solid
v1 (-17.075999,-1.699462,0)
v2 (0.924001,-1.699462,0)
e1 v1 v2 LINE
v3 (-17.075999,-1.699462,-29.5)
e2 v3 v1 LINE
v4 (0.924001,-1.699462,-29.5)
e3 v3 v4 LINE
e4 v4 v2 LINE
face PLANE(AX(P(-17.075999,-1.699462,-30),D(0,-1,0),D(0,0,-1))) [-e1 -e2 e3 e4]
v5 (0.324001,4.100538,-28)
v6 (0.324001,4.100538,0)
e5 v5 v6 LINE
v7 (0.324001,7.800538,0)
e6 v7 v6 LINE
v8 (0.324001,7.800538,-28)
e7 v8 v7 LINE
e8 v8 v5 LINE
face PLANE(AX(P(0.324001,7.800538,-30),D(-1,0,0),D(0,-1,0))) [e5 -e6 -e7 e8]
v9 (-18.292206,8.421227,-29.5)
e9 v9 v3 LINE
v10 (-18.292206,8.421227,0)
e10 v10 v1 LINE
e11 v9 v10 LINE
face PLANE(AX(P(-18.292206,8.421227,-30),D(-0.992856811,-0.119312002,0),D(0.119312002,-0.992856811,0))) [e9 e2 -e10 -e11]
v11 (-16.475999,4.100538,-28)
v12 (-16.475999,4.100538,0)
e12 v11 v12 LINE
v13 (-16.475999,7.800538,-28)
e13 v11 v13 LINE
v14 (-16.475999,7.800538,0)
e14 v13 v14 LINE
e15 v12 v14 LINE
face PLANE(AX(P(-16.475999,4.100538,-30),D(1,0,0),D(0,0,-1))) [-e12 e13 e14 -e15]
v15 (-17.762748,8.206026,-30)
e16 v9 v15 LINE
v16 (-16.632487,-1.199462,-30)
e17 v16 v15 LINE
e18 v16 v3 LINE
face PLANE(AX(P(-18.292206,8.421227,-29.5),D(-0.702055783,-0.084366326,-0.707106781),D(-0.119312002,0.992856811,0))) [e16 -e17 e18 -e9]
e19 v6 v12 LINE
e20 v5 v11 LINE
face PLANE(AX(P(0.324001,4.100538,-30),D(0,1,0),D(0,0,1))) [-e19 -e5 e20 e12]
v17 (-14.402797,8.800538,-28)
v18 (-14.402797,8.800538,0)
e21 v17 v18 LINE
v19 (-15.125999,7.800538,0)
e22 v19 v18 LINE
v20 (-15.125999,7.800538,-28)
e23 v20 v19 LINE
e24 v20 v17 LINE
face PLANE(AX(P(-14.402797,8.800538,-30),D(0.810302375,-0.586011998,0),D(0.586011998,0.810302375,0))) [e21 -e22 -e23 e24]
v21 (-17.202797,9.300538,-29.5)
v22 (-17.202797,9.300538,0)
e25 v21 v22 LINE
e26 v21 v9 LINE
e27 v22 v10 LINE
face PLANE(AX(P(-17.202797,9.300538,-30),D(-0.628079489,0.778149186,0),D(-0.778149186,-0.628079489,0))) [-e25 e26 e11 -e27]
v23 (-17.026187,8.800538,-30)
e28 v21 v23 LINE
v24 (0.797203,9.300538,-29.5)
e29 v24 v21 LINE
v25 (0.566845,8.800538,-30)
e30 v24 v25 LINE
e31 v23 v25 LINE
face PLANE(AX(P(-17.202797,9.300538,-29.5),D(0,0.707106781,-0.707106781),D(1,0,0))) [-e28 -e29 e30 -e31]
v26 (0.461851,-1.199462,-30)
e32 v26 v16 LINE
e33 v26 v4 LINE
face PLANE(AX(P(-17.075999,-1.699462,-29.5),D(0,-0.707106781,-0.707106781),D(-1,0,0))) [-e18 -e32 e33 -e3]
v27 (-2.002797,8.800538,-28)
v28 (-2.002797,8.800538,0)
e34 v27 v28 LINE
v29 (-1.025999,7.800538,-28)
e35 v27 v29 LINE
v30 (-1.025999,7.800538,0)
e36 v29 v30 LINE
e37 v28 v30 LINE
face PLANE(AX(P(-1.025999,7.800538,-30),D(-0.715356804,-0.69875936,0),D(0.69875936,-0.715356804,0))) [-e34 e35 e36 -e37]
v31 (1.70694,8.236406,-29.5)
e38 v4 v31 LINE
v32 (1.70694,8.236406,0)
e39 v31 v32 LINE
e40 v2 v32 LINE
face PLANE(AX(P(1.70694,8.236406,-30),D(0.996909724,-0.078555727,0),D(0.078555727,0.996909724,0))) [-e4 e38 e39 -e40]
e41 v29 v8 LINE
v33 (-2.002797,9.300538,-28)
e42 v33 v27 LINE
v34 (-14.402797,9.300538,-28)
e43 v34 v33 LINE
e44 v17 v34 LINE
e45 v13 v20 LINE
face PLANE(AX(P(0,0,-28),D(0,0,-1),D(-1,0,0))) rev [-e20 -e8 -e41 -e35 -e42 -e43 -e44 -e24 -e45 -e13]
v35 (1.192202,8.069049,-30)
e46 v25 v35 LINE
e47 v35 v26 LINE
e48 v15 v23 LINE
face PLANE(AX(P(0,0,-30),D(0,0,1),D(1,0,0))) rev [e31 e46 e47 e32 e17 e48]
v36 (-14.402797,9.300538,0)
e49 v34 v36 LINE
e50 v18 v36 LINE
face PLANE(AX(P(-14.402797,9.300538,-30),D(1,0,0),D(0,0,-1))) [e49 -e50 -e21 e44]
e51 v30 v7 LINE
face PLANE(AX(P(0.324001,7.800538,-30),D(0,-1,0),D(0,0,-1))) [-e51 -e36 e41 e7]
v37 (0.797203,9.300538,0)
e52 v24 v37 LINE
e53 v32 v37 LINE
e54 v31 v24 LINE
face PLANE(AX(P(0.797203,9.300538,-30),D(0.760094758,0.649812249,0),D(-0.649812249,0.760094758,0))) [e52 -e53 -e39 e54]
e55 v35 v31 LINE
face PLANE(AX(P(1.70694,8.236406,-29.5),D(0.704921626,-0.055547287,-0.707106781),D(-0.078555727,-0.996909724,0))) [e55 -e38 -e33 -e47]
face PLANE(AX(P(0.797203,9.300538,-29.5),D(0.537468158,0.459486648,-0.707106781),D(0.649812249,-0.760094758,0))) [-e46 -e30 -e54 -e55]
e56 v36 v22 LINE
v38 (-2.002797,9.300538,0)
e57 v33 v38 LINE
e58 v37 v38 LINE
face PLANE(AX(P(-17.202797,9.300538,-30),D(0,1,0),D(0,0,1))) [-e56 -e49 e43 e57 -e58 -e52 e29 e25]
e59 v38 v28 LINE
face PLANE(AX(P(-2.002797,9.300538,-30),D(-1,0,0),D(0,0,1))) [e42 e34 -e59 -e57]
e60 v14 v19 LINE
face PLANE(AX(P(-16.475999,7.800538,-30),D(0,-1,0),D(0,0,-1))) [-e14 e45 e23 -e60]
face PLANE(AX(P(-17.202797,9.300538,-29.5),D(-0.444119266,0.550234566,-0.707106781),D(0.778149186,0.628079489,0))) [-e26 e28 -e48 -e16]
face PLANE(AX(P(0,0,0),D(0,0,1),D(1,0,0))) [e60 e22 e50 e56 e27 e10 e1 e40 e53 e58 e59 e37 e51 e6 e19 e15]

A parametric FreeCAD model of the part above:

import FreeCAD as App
import Part
import Sketcher

V = App.Vector


def edges_at(feature, points):
    """Names of the edges that pass closest to the given points."""
    edges = feature.Shape.Edges
    near = lambda p: min(range(len(edges)), key=lambda i: edges[i].distToShape(Part.Vertex(*p))[0])
    return sorted({f"Edge{near(p) + 1}" for p in points})


def add_polygon(sketch, points):
    """Adds a closed chain of lines whose ends are joined by coincident constraints."""
    first, n = sketch.GeometryCount, len(points)
    for a, b in zip(points, points[1:] + points[:1]):
        sketch.addGeometry(Part.LineSegment(App.Vector(*a, 0), App.Vector(*b, 0)), False)
    for i in range(n):
        sketch.addConstraint(Sketcher.Constraint("Coincident", first + i, 2, first + (i + 1) % n, 1))

doc = App.newDocument("Part")
body = doc.addObject("PartDesign::Body", "Body")

# Sketch on XY plane
sketch1 = body.newObject("Sketcher::SketchObject", "Sketch")
sketch1.AttachmentSupport = (doc.getObject("XY_Plane"), [""])
sketch1.MapMode = "FlatFace"
add_polygon(sketch1, [(-17.1, -1.7), (0.9, -1.7), (1.7, 8.2), (0.8, 9.3), (-2, 9.3), (-2, 8.8), (-1, 7.8), (0.3, 7.8), (0.3, 4.1), (-16.5, 4.1), (-16.5, 7.8), (-15.1, 7.8), (-14.4, 8.8), (-14.4, 9.3), (-17.2, 9.3), (-18.3, 8.4)])  # lines 0-15
sketch1.addConstraint(Sketcher.Constraint("Horizontal", 0))
sketch1.addConstraint(Sketcher.Constraint("Horizontal", 3))
sketch1.addConstraint(Sketcher.Constraint("Vertical", 4))
sketch1.addConstraint(Sketcher.Constraint("Horizontal", 6))
sketch1.addConstraint(Sketcher.Constraint("Vertical", 7))
sketch1.addConstraint(Sketcher.Constraint("Horizontal", 8))
sketch1.addConstraint(Sketcher.Constraint("Vertical", 9))
sketch1.addConstraint(Sketcher.Constraint("Horizontal", 10))
sketch1.addConstraint(Sketcher.Constraint("Vertical", 12))
sketch1.addConstraint(Sketcher.Constraint("Horizontal", 13))
sketch1.addConstraint(Sketcher.Constraint("Horizontal", 6, 2, 9, 2))
sketch1.addConstraint(Sketcher.Constraint("Horizontal", 4, 2, 11, 2))
sketch1.addConstraint(Sketcher.Constraint("Horizontal", 3, 2, 12, 2))
sketch1.addConstraint(Sketcher.Constraint("Equal", 6, 10))
sketch1.addConstraint(Sketcher.Constraint("Equal", 3, 13))
sketch1.addConstraint(Sketcher.Constraint("Equal", 2, 14))
sketch1.addConstraint(Sketcher.Constraint("DistanceX", 0, 1, 0, 2, 18.0))
sketch1.addConstraint(Sketcher.Constraint("DistanceX", 3, 2, 3, 1, 2.8))
sketch1.addConstraint(Sketcher.Constraint("DistanceX", 8, 2, 8, 1, 16.8))
sketch1.addConstraint(Sketcher.Constraint("DistanceY", 4, 2, 4, 1, 0.5))
sketch1.addConstraint(Sketcher.Constraint("DistanceY", 7, 2, 7, 1, 3.7))
sketch1.addConstraint(Sketcher.Constraint("DistanceY", 0, 2, 2, 2, 11.0))
sketch1.addConstraint(Sketcher.Constraint("DistanceY", 5, 2, 4, 2, 1.0))
sketch1.addConstraint(Sketcher.Constraint("Distance", 2, 1.4))
sketch1.addConstraint(Sketcher.Constraint("DistanceX", 6, 1, 6, 2, 1.35))
sketch1.addConstraint(Sketcher.Constraint("DistanceX", 11, 2, 4, 2, 12.4))
sketch1.addConstraint(Sketcher.Constraint("DistanceX", 15, 2, 8, 2, 0.6))
sketch1.addConstraint(Sketcher.Constraint("DistanceX", -1, 1, 0, 2, 0.924001))
sketch1.addConstraint(Sketcher.Constraint("DistanceX", 2, 2, 0, 2, 0.126798))
sketch1.addConstraint(Sketcher.Constraint("DistanceY", 0, 2, -1, 1, 1.699462))
sketch1.addConstraint(Sketcher.Constraint("DistanceX", -1, 1, 1, 2, 1.70694))
sketch1.addConstraint(Sketcher.Constraint("DistanceX", 14, 2, 13, 2, 1.089409))
pad1 = body.newObject("PartDesign::Pad", "Pad")
pad1.Profile = sketch1
pad1.Length = 30
pad1.Reversed = True

# Sketch on XY plane
sketch2 = body.newObject("Sketcher::SketchObject", "Sketch001")
sketch2.AttachmentSupport = (doc.getObject("XY_Plane"), [""])
sketch2.MapMode = "FlatFace"
sketch2.AttachmentOffset = App.Placement(V(0, 0, -30), App.Rotation())
add_polygon(sketch2, [(-16, 9), (0, 9), (0, 4), (-16, 4)])  # lines 0-3
sketch2.addConstraint(Sketcher.Constraint("Horizontal", 0))
sketch2.addConstraint(Sketcher.Constraint("Vertical", 1))
sketch2.addConstraint(Sketcher.Constraint("Horizontal", 2))
sketch2.addConstraint(Sketcher.Constraint("Vertical", 3))
sketch2.addConstraint(Sketcher.Constraint("DistanceX", 0, 1, 0, 2, 16.8))
sketch2.addConstraint(Sketcher.Constraint("DistanceY", 1, 2, 1, 1, 5.2))
sketch2.addConstraint(Sketcher.Constraint("DistanceX", -1, 1, 0, 2, 0.324001))
sketch2.addConstraint(Sketcher.Constraint("DistanceY", -1, 1, 0, 2, 9.300538))
pad2 = body.newObject("PartDesign::Pad", "Pad001")
pad2.Profile = sketch2
pad2.Length = 2
doc.recompute()

chamfer = body.newObject("PartDesign::Chamfer", "Chamfer")
chamfer.Base = (pad2, edges_at(pad2, [
    (1.315, 3.268, -30),
    (1.252, 8.768, -30),
    (-8.203, 9.301, -30),
    (-17.684, 3.361, -30),
    (-17.748, 8.861, -30),
    (-8.076, -1.699, -30),
]))
chamfer.Size = 0.5

doc.recompute()
